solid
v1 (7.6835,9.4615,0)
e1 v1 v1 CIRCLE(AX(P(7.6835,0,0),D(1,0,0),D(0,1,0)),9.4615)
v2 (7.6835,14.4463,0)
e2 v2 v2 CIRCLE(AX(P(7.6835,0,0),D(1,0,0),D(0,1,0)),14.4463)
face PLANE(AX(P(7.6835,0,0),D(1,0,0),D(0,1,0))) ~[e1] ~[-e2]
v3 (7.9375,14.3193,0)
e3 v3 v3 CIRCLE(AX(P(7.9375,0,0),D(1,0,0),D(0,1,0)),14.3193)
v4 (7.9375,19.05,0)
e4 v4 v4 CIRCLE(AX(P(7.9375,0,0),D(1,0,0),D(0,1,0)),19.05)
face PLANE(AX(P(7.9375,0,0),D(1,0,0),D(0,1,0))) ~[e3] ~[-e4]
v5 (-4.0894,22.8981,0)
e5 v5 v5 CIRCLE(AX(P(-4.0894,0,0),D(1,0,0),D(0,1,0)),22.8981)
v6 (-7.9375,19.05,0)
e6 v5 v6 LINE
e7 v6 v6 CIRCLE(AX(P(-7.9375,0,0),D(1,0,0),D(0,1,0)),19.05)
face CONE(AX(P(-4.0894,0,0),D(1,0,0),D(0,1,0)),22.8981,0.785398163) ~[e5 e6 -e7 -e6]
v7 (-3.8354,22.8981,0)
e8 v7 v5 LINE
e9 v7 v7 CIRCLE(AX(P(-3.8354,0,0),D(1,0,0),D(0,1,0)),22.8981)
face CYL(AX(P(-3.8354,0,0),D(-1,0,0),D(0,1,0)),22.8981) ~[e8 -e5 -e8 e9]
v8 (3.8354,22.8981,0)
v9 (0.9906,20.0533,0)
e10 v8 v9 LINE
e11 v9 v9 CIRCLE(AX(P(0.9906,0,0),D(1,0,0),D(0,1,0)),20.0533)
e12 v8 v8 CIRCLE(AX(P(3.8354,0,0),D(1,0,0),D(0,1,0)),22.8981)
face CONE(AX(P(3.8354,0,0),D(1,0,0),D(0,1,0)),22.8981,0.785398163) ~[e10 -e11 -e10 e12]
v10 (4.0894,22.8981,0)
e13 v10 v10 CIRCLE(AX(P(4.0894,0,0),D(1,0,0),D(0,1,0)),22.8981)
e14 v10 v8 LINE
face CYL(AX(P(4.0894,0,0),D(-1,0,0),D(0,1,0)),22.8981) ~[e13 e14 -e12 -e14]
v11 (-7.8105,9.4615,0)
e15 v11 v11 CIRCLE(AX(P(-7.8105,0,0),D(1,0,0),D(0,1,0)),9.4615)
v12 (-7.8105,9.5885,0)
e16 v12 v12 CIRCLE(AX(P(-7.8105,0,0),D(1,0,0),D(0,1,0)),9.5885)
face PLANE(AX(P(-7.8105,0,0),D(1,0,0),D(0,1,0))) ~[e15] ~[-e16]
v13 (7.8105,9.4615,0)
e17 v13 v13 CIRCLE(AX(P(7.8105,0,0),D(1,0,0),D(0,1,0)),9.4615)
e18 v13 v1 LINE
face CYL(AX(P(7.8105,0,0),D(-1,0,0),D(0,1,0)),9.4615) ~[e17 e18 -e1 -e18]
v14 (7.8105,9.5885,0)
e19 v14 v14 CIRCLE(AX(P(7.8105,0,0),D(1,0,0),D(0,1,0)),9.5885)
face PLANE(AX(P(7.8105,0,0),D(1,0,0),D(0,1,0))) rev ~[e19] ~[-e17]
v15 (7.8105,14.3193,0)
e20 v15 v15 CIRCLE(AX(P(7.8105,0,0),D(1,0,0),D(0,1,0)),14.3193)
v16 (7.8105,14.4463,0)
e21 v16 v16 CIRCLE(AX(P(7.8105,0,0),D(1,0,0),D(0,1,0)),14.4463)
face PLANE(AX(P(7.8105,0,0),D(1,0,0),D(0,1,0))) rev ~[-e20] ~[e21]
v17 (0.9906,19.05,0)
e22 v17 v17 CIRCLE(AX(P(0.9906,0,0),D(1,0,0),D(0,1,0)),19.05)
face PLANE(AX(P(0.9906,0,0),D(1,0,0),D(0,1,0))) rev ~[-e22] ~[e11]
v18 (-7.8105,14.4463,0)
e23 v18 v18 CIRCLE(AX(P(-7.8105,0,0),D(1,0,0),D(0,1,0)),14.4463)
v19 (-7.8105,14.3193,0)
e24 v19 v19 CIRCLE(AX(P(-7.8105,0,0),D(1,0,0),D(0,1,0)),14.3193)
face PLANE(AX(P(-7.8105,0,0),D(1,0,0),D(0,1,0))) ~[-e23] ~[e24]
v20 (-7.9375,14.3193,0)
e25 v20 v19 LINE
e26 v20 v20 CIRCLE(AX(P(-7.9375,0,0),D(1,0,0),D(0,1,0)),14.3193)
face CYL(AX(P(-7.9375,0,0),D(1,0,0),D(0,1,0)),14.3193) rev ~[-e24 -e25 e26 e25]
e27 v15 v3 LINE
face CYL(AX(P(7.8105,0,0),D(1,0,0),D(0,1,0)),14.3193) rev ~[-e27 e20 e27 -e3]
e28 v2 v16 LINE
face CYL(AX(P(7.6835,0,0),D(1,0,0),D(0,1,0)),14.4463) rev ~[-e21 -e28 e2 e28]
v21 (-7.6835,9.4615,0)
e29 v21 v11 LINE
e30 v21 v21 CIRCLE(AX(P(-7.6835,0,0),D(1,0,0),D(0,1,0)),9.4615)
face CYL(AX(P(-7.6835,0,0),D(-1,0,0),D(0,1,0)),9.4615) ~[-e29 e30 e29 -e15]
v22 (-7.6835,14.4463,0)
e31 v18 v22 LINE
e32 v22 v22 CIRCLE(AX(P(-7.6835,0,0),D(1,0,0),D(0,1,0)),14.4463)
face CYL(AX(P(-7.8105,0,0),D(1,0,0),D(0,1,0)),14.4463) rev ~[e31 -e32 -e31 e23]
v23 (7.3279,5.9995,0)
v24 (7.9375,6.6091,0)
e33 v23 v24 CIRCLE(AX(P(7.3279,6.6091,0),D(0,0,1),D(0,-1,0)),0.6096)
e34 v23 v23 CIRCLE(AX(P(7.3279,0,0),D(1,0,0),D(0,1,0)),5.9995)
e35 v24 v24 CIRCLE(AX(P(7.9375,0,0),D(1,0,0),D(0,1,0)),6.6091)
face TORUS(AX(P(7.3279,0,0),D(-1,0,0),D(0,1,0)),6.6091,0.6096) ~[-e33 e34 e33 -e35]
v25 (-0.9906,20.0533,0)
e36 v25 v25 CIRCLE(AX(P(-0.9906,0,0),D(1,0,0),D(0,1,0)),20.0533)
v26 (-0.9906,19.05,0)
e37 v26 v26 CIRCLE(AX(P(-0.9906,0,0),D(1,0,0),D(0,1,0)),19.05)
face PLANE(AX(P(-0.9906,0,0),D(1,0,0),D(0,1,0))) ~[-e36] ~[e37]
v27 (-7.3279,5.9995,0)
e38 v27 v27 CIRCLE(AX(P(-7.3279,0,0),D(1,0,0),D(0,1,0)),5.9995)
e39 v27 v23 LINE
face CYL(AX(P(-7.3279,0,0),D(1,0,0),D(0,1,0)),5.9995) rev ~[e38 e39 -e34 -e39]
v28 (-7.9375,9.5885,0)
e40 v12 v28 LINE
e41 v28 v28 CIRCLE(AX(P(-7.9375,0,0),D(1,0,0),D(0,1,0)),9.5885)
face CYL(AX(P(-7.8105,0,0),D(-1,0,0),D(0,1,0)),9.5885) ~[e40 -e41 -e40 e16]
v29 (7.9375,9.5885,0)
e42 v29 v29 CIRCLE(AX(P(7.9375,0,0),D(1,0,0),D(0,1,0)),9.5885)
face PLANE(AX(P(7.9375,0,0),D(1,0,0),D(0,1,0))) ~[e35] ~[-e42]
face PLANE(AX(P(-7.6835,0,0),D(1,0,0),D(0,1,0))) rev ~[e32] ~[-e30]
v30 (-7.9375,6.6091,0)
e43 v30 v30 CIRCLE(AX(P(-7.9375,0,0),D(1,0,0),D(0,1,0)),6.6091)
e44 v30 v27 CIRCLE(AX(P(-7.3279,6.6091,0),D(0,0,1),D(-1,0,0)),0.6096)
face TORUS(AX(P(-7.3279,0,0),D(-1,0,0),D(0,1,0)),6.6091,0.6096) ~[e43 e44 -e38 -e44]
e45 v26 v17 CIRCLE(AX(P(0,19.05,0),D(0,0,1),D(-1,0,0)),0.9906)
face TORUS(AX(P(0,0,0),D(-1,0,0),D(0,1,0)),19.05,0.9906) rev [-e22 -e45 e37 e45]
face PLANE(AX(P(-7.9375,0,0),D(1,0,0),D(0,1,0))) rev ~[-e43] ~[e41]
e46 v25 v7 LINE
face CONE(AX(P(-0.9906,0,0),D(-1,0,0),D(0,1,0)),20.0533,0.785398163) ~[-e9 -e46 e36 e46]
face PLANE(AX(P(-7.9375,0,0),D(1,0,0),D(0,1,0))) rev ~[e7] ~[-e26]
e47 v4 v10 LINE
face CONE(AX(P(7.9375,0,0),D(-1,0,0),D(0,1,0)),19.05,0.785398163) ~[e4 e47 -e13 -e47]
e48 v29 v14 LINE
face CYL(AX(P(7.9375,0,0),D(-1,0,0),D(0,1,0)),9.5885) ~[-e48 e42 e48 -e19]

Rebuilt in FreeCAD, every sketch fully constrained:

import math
import FreeCAD as App
import Part
import Sketcher

V = App.Vector
Q = App.Units.Quantity

doc = App.newDocument("Part")
params = doc.addObject("Spreadsheet::Sheet", "Params")
for row, (alias, value) in enumerate([
    ("sketch1_radius", "0.024 in"),
    ("sketch1_radius2", "0.039 in"),
    ("sketch1_width", "0.01 in"),
    ("sketch1_width2", "0.005 in"),
    ("sketch1_width3", "0.577 in"),
    ("revolution_angle", "360 deg"),
], start=1):
    params.set(f"A{row}", alias)
    params.set(f"B{row}", "=" + value)
    params.setAlias(f"B{row}", alias)

body = doc.addObject("PartDesign::Body", "Body")

sketch1 = body.newObject("Sketcher::SketchObject", "Sketch")
sketch1.AttachmentSupport = (doc.getObject("XY_Plane"), [""])
sketch1.MapMode = "FlatFace"
sketch1.addGeometry([
    Part.LineSegment(V(-7.81, 9.59, 0), V(-7.94, 9.59, 0)),
    Part.LineSegment(V(-7.94, 9.59, 0), V(-7.94, 6.61, 0)),
    Part.ArcOfCircle(Part.Circle(V(-7.33, 6.61, 0), V(0, 0, 1), 0.61), math.radians(180), math.radians(270)),
    Part.LineSegment(V(-7.33, 6, 0), V(7.33, 6, 0)),
    Part.ArcOfCircle(Part.Circle(V(7.33, 6.61, 0), V(0, 0, 1), 0.61), math.radians(-90), math.radians(0)),
    Part.LineSegment(V(7.94, 6.61, 0), V(7.94, 9.59, 0)),
    Part.LineSegment(V(7.94, 9.59, 0), V(7.81, 9.59, 0)),
    Part.LineSegment(V(7.81, 9.59, 0), V(7.81, 9.46, 0)),
    Part.LineSegment(V(7.81, 9.46, 0), V(7.68, 9.46, 0)),
    Part.LineSegment(V(7.68, 9.46, 0), V(7.68, 14.45, 0)),
    Part.LineSegment(V(7.68, 14.45, 0), V(7.81, 14.45, 0)),
    Part.LineSegment(V(7.81, 14.45, 0), V(7.81, 14.32, 0)),
    Part.LineSegment(V(7.81, 14.32, 0), V(7.94, 14.32, 0)),
    Part.LineSegment(V(7.94, 14.32, 0), V(7.94, 19.05, 0)),
    Part.LineSegment(V(7.94, 19.05, 0), V(4.09, 22.9, 0)),
    Part.LineSegment(V(4.09, 22.9, 0), V(3.84, 22.9, 0)),
    Part.LineSegment(V(3.84, 22.9, 0), V(0.99, 20.05, 0)),
    Part.LineSegment(V(0.99, 20.05, 0), V(0.99, 19.05, 0)),
    Part.ArcOfCircle(Part.Circle(V(0, 19.05, 0), V(0, 0, 1), 0.99), math.radians(180), math.radians(360)),
    Part.LineSegment(V(-0.99, 19.05, 0), V(-0.99, 20.05, 0)),
    Part.LineSegment(V(-0.99, 20.05, 0), V(-3.84, 22.9, 0)),
    Part.LineSegment(V(-3.84, 22.9, 0), V(-4.09, 22.9, 0)),
    Part.LineSegment(V(-4.09, 22.9, 0), V(-7.94, 19.05, 0)),
    Part.LineSegment(V(-7.94, 19.05, 0), V(-7.94, 14.32, 0)),
    Part.LineSegment(V(-7.94, 14.32, 0), V(-7.81, 14.32, 0)),
    Part.LineSegment(V(-7.81, 14.32, 0), V(-7.81, 14.45, 0)),
    Part.LineSegment(V(-7.81, 14.45, 0), V(-7.68, 14.45, 0)),
    Part.LineSegment(V(-7.68, 14.45, 0), V(-7.68, 9.46, 0)),
    Part.LineSegment(V(-7.68, 9.46, 0), V(-7.81, 9.46, 0)),
    Part.LineSegment(V(-7.81, 9.46, 0), V(-7.81, 9.59, 0)),
], False)
sketch1.addConstraint([
    Sketcher.Constraint("Coincident", 0, 2, 1, 1),
    Sketcher.Constraint("Tangent", 1, 2, 2, 1),
    Sketcher.Constraint("Tangent", 2, 2, 3, 1),
    Sketcher.Constraint("Tangent", 3, 2, 4, 1),
    Sketcher.Constraint("Tangent", 4, 2, 5, 1),
    Sketcher.Constraint("Coincident", 5, 2, 6, 1),
    Sketcher.Constraint("Coincident", 6, 2, 7, 1),
    Sketcher.Constraint("Coincident", 7, 2, 8, 1),
    Sketcher.Constraint("Coincident", 8, 2, 9, 1),
    Sketcher.Constraint("Coincident", 9, 2, 10, 1),
    Sketcher.Constraint("Coincident", 10, 2, 11, 1),
    Sketcher.Constraint("Coincident", 11, 2, 12, 1),
    Sketcher.Constraint("Coincident", 12, 2, 13, 1),
    Sketcher.Constraint("Coincident", 13, 2, 14, 1),
    Sketcher.Constraint("Coincident", 14, 2, 15, 1),
    Sketcher.Constraint("Coincident", 15, 2, 16, 1),
    Sketcher.Constraint("Coincident", 16, 2, 17, 1),
    Sketcher.Constraint("Tangent", 17, 2, 18, 2),
    Sketcher.Constraint("Tangent", 18, 1, 19, 1),
    Sketcher.Constraint("Coincident", 19, 2, 20, 1),
    Sketcher.Constraint("Coincident", 20, 2, 21, 1),
    Sketcher.Constraint("Coincident", 21, 2, 22, 1),
    Sketcher.Constraint("Coincident", 22, 2, 23, 1),
    Sketcher.Constraint("Coincident", 23, 2, 24, 1),
    Sketcher.Constraint("Coincident", 24, 2, 25, 1),
    Sketcher.Constraint("Coincident", 25, 2, 26, 1),
    Sketcher.Constraint("Coincident", 26, 2, 27, 1),
    Sketcher.Constraint("Coincident", 27, 2, 28, 1),
    Sketcher.Constraint("Coincident", 28, 2, 29, 1),
    Sketcher.Constraint("Coincident", 29, 2, 0, 1),
    Sketcher.Constraint("Horizontal", 0),
    Sketcher.Constraint("Vertical", 1),
    Sketcher.Constraint("Horizontal", 3),
    Sketcher.Constraint("Vertical", 5),
    Sketcher.Constraint("Horizontal", 6),
    Sketcher.Constraint("Vertical", 7),
    Sketcher.Constraint("Horizontal", 8),
    Sketcher.Constraint("Vertical", 9),
    Sketcher.Constraint("Horizontal", 10),
    Sketcher.Constraint("Vertical", 11),
    Sketcher.Constraint("Horizontal", 12),
    Sketcher.Constraint("Vertical", 13),
    Sketcher.Constraint("Horizontal", 15),
    Sketcher.Constraint("Vertical", 17),
    Sketcher.Constraint("Vertical", 19),
    Sketcher.Constraint("Horizontal", 21),
    Sketcher.Constraint("Vertical", 23),
    Sketcher.Constraint("Horizontal", 24),
    Sketcher.Constraint("Vertical", 25),
    Sketcher.Constraint("Horizontal", 26),
    Sketcher.Constraint("Vertical", 27),
    Sketcher.Constraint("Horizontal", 28),
    Sketcher.Constraint("Vertical", 29),
    Sketcher.Constraint("Equal", 2, 4),
    Sketcher.Constraint("Symmetric", 0, 2, 5, 2, -2),
    Sketcher.Constraint("Symmetric", 16, 2, 19, 2, -2),
    Sketcher.Constraint("Symmetric", 15, 2, 20, 2, -2),
    Sketcher.Constraint("Symmetric", 13, 2, 22, 2, -2),
    Sketcher.Constraint("Symmetric", 11, 2, 24, 2, -2),
    Sketcher.Constraint("Symmetric", 9, 2, 26, 2, -2),
    Sketcher.Constraint("Symmetric", 7, 2, 28, 2, -2),
    Sketcher.Constraint("Perpendicular", 14, 16),
    Sketcher.Constraint("Perpendicular", 16, 20),
    Sketcher.Constraint("Perpendicular", 20, 22),
    Sketcher.Constraint("Horizontal", 18, 3, 13, 2),
    Sketcher.Constraint("Vertical", 7, 2, 10, 2),
    Sketcher.Constraint("Vertical", 5, 2, 12, 2),
    Sketcher.Constraint("Equal", 6, 8),
    Sketcher.Constraint("Equal", 28, 7),
    Sketcher.Constraint("Equal", 7, 11),
    Sketcher.Constraint("Radius", 2, Q("0.024 in")),
    Sketcher.Constraint("Radius", 18, Q("0.039 in")),
    Sketcher.Constraint("DistanceX", 15, 2, 15, 1, Q("0.01 in")),
    Sketcher.Constraint("DistanceX", 18, 1, 14, 2, Q("0.2 in")),
    Sketcher.Constraint("DistanceX", 0, 2, 0, 1, Q("0.005 in")),
    Sketcher.Constraint("DistanceX", 3, 1, 3, 2, Q("0.577 in")),
    Sketcher.Constraint("DistanceY", -1, 1, 18, 3, Q("0.75 in")),
    Sketcher.Constraint("DistanceY", 1, 2, 1, 1, Q("0.1173 in")),
    Sketcher.Constraint("DistanceY", 9, 1, 9, 2, Q("4.9848 mm")),
    Sketcher.Constraint("DistanceY", 13, 1, 13, 2, Q("4.7307 mm")),
])
sketch1.setExpression("Constraints[70]", "Params.sketch1_radius")
sketch1.setExpression("Constraints[71]", "Params.sketch1_radius2")
sketch1.setExpression("Constraints[72]", "Params.sketch1_width")
sketch1.setExpression("Constraints[74]", "Params.sketch1_width2")
sketch1.setExpression("Constraints[75]", "Params.sketch1_width3")
revolution = body.newObject("PartDesign::Revolution", "Revolution")
revolution.Profile = sketch1
revolution.ReferenceAxis = (sketch1, ["H_Axis"])
revolution.setExpression("Angle", "Params.revolution_angle")

doc.recompute()
